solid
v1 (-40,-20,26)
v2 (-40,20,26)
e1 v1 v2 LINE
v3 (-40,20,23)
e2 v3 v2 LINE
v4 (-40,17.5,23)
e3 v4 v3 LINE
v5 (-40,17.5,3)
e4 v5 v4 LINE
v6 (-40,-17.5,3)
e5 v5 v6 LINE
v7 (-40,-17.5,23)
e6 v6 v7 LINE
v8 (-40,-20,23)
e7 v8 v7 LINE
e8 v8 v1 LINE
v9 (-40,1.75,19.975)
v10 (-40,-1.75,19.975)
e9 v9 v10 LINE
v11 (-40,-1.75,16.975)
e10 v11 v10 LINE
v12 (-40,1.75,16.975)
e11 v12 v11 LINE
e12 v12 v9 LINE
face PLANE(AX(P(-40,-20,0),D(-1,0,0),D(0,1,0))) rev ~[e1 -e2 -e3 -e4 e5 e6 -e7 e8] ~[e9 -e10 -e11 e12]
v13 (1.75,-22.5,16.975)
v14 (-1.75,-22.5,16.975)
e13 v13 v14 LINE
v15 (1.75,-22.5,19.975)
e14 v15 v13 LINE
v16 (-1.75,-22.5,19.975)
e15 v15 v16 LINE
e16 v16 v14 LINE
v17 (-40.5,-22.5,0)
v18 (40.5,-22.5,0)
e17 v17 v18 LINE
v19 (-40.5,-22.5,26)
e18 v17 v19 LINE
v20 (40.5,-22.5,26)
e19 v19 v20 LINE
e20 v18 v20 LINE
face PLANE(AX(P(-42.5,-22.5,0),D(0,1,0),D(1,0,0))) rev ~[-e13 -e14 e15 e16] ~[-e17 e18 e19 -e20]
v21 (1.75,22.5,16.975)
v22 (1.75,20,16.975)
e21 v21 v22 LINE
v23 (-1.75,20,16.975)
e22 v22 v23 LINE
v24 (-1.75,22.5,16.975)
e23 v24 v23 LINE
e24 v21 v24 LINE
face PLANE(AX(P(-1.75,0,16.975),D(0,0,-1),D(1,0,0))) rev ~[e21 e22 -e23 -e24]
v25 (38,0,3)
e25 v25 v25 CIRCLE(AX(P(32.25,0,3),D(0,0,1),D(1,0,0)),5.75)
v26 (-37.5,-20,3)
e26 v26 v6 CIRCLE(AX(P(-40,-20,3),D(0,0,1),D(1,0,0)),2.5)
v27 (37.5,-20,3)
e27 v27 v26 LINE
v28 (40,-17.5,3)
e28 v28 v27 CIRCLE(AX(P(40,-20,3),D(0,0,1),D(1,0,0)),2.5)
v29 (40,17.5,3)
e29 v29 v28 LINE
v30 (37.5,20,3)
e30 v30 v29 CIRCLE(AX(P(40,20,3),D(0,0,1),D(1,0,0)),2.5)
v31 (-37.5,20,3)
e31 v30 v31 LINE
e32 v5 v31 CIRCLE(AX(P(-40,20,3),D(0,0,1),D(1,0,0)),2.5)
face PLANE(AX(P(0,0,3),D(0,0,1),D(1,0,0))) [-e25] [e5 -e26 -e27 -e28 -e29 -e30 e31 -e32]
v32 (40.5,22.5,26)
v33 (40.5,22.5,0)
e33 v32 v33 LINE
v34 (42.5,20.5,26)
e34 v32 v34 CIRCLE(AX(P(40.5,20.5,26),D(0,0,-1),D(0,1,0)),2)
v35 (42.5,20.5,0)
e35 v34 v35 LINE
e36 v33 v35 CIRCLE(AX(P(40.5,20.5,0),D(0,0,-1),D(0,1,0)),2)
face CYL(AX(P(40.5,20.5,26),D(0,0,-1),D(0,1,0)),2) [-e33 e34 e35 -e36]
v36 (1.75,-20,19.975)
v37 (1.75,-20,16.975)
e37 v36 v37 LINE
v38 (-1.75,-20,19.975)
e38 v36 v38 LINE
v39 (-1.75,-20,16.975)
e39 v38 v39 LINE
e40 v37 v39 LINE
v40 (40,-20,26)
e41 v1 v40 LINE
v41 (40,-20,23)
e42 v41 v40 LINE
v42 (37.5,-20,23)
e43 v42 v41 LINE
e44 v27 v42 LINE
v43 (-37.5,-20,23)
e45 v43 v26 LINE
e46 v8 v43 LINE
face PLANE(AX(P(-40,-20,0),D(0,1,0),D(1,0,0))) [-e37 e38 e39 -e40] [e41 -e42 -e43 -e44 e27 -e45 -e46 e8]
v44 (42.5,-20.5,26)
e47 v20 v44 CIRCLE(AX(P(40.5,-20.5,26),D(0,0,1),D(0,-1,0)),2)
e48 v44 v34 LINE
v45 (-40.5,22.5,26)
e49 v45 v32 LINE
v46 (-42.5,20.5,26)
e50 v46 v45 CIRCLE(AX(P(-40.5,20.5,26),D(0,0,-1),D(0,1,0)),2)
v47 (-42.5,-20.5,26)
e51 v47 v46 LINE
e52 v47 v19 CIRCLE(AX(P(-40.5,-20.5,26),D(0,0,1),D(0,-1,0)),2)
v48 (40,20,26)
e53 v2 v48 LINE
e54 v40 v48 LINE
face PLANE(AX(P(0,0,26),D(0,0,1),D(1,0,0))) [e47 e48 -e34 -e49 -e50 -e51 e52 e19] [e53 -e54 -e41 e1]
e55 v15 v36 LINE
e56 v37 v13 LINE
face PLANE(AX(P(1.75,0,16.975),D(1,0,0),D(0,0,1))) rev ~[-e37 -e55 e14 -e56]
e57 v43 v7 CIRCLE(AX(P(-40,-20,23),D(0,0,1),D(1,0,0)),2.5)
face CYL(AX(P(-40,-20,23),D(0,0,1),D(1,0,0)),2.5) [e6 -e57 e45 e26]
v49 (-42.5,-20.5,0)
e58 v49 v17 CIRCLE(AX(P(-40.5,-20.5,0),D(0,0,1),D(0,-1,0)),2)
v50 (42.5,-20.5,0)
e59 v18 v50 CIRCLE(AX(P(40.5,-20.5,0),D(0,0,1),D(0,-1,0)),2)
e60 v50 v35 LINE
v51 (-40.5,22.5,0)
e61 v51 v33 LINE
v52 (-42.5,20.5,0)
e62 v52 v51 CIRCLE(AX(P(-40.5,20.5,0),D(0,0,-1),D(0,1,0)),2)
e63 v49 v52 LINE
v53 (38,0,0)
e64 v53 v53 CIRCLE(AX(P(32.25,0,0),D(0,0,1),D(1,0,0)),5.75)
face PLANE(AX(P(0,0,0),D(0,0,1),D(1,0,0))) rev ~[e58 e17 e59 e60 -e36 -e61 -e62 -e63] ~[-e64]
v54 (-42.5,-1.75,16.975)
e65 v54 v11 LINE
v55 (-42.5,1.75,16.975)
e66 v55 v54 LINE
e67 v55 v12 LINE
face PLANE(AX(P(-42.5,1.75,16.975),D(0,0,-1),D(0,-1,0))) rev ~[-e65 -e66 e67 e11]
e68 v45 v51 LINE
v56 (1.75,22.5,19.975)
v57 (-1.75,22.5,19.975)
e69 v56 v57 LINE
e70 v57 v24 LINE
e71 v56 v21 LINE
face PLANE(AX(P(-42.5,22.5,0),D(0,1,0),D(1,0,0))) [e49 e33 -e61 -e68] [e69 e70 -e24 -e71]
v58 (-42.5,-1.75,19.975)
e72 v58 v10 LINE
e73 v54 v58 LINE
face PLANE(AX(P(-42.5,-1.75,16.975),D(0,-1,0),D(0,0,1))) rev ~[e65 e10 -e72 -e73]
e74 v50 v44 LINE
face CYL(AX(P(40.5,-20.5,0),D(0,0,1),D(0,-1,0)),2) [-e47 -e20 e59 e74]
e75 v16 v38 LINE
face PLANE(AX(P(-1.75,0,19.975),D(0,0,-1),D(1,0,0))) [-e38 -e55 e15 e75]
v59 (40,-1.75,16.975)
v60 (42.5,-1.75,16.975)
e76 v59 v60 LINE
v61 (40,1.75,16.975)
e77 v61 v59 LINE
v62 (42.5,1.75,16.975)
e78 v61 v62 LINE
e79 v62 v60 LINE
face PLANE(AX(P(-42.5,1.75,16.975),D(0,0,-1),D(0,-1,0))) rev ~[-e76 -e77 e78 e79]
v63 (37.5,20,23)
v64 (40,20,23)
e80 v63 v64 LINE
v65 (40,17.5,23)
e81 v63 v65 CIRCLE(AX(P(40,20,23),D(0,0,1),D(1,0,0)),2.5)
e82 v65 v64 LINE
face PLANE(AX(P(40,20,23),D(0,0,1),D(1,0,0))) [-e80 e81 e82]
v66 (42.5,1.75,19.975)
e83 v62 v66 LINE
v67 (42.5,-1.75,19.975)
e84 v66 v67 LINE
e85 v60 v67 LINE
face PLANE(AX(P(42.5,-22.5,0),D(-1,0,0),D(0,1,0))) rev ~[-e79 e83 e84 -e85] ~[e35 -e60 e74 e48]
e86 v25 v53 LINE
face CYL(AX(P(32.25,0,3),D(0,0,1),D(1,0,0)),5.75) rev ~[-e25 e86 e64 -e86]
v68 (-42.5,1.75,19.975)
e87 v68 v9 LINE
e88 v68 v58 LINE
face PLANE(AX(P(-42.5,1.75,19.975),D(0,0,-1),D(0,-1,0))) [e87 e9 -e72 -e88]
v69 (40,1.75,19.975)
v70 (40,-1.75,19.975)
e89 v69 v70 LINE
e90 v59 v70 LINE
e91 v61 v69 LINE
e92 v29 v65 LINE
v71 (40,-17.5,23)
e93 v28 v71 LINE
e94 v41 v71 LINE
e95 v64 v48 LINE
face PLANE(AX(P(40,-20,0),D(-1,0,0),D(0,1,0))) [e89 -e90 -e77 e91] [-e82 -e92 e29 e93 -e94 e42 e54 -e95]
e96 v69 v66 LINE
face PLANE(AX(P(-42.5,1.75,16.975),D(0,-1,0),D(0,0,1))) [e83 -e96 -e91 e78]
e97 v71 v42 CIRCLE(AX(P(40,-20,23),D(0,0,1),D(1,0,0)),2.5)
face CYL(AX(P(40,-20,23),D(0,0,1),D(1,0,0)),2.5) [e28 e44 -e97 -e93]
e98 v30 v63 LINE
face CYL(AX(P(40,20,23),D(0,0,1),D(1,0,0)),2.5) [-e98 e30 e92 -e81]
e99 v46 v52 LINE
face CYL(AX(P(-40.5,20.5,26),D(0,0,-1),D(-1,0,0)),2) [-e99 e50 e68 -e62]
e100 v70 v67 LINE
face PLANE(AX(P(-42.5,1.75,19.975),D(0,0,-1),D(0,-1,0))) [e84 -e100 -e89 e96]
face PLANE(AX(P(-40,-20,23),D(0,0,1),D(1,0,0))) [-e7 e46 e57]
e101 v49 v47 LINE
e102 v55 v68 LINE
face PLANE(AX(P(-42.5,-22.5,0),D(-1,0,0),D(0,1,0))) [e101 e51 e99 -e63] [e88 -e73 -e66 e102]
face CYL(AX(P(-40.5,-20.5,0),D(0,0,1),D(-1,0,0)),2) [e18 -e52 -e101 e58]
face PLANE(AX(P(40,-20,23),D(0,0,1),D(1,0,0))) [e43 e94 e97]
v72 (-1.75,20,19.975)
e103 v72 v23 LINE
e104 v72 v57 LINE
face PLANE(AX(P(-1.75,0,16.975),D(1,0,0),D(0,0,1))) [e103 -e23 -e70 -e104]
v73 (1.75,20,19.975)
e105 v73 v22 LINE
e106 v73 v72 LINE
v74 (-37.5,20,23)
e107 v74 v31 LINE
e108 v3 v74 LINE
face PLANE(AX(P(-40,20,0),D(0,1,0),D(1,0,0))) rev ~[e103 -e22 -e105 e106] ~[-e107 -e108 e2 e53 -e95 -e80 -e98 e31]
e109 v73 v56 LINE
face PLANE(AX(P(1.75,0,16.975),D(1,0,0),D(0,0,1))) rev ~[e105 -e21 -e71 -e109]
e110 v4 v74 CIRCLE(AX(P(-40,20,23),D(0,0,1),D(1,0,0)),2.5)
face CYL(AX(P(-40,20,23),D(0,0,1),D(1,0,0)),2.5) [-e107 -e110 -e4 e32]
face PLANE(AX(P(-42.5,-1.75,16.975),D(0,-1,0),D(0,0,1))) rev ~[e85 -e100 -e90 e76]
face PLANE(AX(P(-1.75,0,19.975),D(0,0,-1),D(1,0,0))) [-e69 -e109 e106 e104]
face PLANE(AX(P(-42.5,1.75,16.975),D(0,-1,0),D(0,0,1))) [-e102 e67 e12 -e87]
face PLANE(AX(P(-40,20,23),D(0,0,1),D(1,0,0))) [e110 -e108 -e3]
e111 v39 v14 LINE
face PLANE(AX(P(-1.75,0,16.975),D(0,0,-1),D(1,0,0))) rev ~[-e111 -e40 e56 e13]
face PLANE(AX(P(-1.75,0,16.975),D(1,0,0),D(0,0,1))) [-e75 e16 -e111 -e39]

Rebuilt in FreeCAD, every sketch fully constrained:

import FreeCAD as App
import Part
import Sketcher
from FreeCAD import Vector
Q = App.Units.Quantity


def edges_at(feature, points):
    """Names of the edges that pass closest to the given points."""
    edges = feature.Shape.Edges
    near = lambda p: min(range(len(edges)), key=lambda i: edges[i].distToShape(Part.Vertex(*p))[0])
    return sorted({f"Edge{near(p) + 1}" for p in points})

doc = App.newDocument("Part")
body = doc.addObject("PartDesign::Body", "Body")

# Sketch on XY plane
sketch1 = doc.addObject("Sketcher::SketchObject", "Sketch")
body.addObject(sketch1)
sketch1.AttachmentSupport = (doc.XY_Plane, [""])
sketch1.MapMode = "FlatFace"
sketch1.addGeometry([
    Part.LineSegment(Vector(-42, 22, 0), Vector(-42, -22, 0)),
    Part.LineSegment(Vector(-42, -22, 0), Vector(42, -22, 0)),
    Part.LineSegment(Vector(42, -22, 0), Vector(42, 22, 0)),
    Part.LineSegment(Vector(42, 22, 0), Vector(-42, 22, 0)),
], False)
sketch1.addConstraint([
    Sketcher.Constraint("Coincident", 0, 2, 1, 1),
    Sketcher.Constraint("Coincident", 1, 2, 2, 1),
    Sketcher.Constraint("Coincident", 2, 2, 3, 1),
    Sketcher.Constraint("Coincident", 3, 2, 0, 1),
    Sketcher.Constraint("Vertical", 0),
    Sketcher.Constraint("Horizontal", 1),
    Sketcher.Constraint("Vertical", 2),
    Sketcher.Constraint("Horizontal", 3),
    Sketcher.Constraint("Symmetric", 0, 2, 2, 2, -1, 1),
    Sketcher.Constraint("DistanceX", 1, 1, 1, 2, Q("85 mm")),
    Sketcher.Constraint("DistanceY", 0, 2, 0, 1, Q("45 mm")),
])
pad1 = doc.addObject("PartDesign::Pad", "Pad")
body.addObject(pad1)
pad1.Profile = sketch1
pad1.Length = 3

# Sketch on XY plane
sketch2 = doc.addObject("Sketcher::SketchObject", "Sketch001")
body.addObject(sketch2)
sketch2.AttachmentSupport = (doc.XY_Plane, [""])
sketch2.MapMode = "FlatFace"
sketch2.addGeometry([
    Part.LineSegment(Vector(-42, 22, 0), Vector(-42, -22, 0)),  # 0
    Part.LineSegment(Vector(-42, -22, 0), Vector(42, -22, 0)),  # 1
    Part.LineSegment(Vector(42, -22, 0), Vector(42, 22, 0)),  # 2
    Part.LineSegment(Vector(42, 22, 0), Vector(-42, 22, 0)),  # 3
    Part.LineSegment(Vector(40, -20, 0), Vector(-40, -20, 0)),  # 4
    Part.LineSegment(Vector(-40, -20, 0), Vector(-40, 20, 0)),  # 5
    Part.LineSegment(Vector(-40, 20, 0), Vector(40, 20, 0)),  # 6
    Part.LineSegment(Vector(40, 20, 0), Vector(40, -20, 0)),  # 7
], False)
sketch2.addConstraint([
    Sketcher.Constraint("Coincident", 0, 2, 1, 1),
    Sketcher.Constraint("Coincident", 1, 2, 2, 1),
    Sketcher.Constraint("Coincident", 2, 2, 3, 1),
    Sketcher.Constraint("Coincident", 3, 2, 0, 1),
    Sketcher.Constraint("Coincident", 4, 2, 5, 1),
    Sketcher.Constraint("Coincident", 5, 2, 6, 1),
    Sketcher.Constraint("Coincident", 6, 2, 7, 1),
    Sketcher.Constraint("Coincident", 7, 2, 4, 1),
    Sketcher.Constraint("Vertical", 0),
    Sketcher.Constraint("Horizontal", 1),
    Sketcher.Constraint("Vertical", 2),
    Sketcher.Constraint("Horizontal", 3),
    Sketcher.Constraint("Horizontal", 4),
    Sketcher.Constraint("Vertical", 5),
    Sketcher.Constraint("Horizontal", 6),
    Sketcher.Constraint("Vertical", 7),
    Sketcher.Constraint("Symmetric", 0, 2, 2, 2, -1, 1),
    Sketcher.Constraint("Symmetric", 4, 2, 6, 2, -1, 1),
    Sketcher.Constraint("DistanceX", 1, 1, 1, 2, Q("85 mm")),
    Sketcher.Constraint("DistanceX", 4, 2, 4, 1, Q("80 mm")),
    Sketcher.Constraint("DistanceY", 0, 2, 0, 1, Q("45 mm")),
    Sketcher.Constraint("DistanceY", 5, 1, 5, 2, Q("40 mm")),
])
pad2 = doc.addObject("PartDesign::Pad", "Pad001")
body.addObject(pad2)
pad2.Profile = sketch2
pad2.Length = 26

# Sketch on XY plane
sketch3 = doc.addObject("Sketcher::SketchObject", "Sketch002")
body.addObject(sketch3)
sketch3.AttachmentSupport = (doc.XY_Plane, [""])
sketch3.MapMode = "FlatFace"
sketch3.AttachmentOffset = App.Placement(Vector(0, 0, 23), App.Rotation())
sketch3.addGeometry([
    Part.Circle(Vector(-40, 20, 0), Vector(0, 0, 1), 2.5),
    Part.Circle(Vector(40, 20, 0), Vector(0, 0, 1), 2.5),
    Part.Circle(Vector(40, -20, 0), Vector(0, 0, 1), 2.5),
    Part.Circle(Vector(-40, -20, 0), Vector(0, 0, 1), 2.5),
], False)
sketch3.addConstraint([
    Sketcher.Constraint("Equal", 0, 1),
    Sketcher.Constraint("Equal", 1, 2),
    Sketcher.Constraint("Equal", 2, 3),
    Sketcher.Constraint("Symmetric", 0, 3, 2, 3, -1, 1),
    Sketcher.Constraint("Symmetric", 1, 3, 3, 3, -1, 1),
    Sketcher.Constraint("Symmetric", 0, 3, 1, 3, -2),
    Sketcher.Constraint("Diameter", 0, Q("5 mm")),
    Sketcher.Constraint("DistanceX", 0, 3, -1, 1, Q("40 mm")),
    Sketcher.Constraint("DistanceY", -1, 1, 0, 3, Q("20 mm")),
])
pad3 = doc.addObject("PartDesign::Pad", "Pad002")
body.addObject(pad3)
pad3.Profile = sketch3
pad3.Type = "UpToLast"
pad3.Reversed = True

# Sketch on YZ plane
sketch4 = doc.addObject("Sketcher::SketchObject", "Sketch003")
body.addObject(sketch4)
sketch4.AttachmentSupport = (doc.YZ_Plane, [""])
sketch4.MapMode = "FlatFace"
sketch4.AttachmentOffset = App.Placement(Vector(0, 0, -42.5), App.Rotation())
sketch4.addGeometry([
    Part.LineSegment(Vector(1.8, 20, 0), Vector(1.8, 17, 0)),
    Part.LineSegment(Vector(1.8, 17, 0), Vector(-1.8, 17, 0)),
    Part.LineSegment(Vector(-1.8, 17, 0), Vector(-1.8, 20, 0)),
    Part.LineSegment(Vector(-1.8, 20, 0), Vector(1.8, 20, 0)),
], False)
sketch4.addConstraint([
    Sketcher.Constraint("Coincident", 0, 2, 1, 1),
    Sketcher.Constraint("Coincident", 1, 2, 2, 1),
    Sketcher.Constraint("Coincident", 2, 2, 3, 1),
    Sketcher.Constraint("Coincident", 3, 2, 0, 1),
    Sketcher.Constraint("Vertical", 0),
    Sketcher.Constraint("Horizontal", 1),
    Sketcher.Constraint("Vertical", 2),
    Sketcher.Constraint("Horizontal", 3),
    Sketcher.Constraint("DistanceY", 0, 2, 0, 1, Q("3 mm")),
    Sketcher.Constraint("DistanceX", 1, 2, 1, 1, Q("3.5 mm")),
    Sketcher.Constraint("DistanceX", -1, 1, 0, 2, Q("1.75 mm")),
    Sketcher.Constraint("DistanceY", -1, 1, 0, 2, Q("16.975 mm")),
])
pocket1 = doc.addObject("PartDesign::Pocket", "Pocket")
body.addObject(pocket1)
pocket1.Profile = sketch4
pocket1.Type = "ThroughAll"
pocket1.Reversed = True

# Sketch on XZ plane
sketch5 = doc.addObject("Sketcher::SketchObject", "Sketch004")
body.addObject(sketch5)
sketch5.AttachmentSupport = (doc.XZ_Plane, [""])
sketch5.MapMode = "FlatFace"
sketch5.addGeometry([
    Part.LineSegment(Vector(-1.8, 20, 0), Vector(-1.8, 17, 0)),
    Part.LineSegment(Vector(-1.8, 17, 0), Vector(1.8, 17, 0)),
    Part.LineSegment(Vector(1.8, 17, 0), Vector(1.8, 20, 0)),
    Part.LineSegment(Vector(1.8, 20, 0), Vector(-1.8, 20, 0)),
], False)
sketch5.addConstraint([
    Sketcher.Constraint("Coincident", 0, 2, 1, 1),
    Sketcher.Constraint("Coincident", 1, 2, 2, 1),
    Sketcher.Constraint("Coincident", 2, 2, 3, 1),
    Sketcher.Constraint("Coincident", 3, 2, 0, 1),
    Sketcher.Constraint("Vertical", 0),
    Sketcher.Constraint("Horizontal", 1),
    Sketcher.Constraint("Vertical", 2),
    Sketcher.Constraint("Horizontal", 3),
    Sketcher.Constraint("DistanceY", 0, 2, 0, 1, Q("3 mm")),
    Sketcher.Constraint("DistanceX", 1, 1, 1, 2, Q("3.5 mm")),
    Sketcher.Constraint("DistanceX", 0, 2, -1, 1, Q("1.75 mm")),
    Sketcher.Constraint("DistanceY", -1, 1, 0, 2, Q("16.975 mm")),
])
pocket2 = doc.addObject("PartDesign::Pocket", "Pocket001")
body.addObject(pocket2)
pocket2.Profile = sketch5
pocket2.Length = 60
pocket2.Midplane = True
doc.recompute()

fillet = doc.addObject("PartDesign::Fillet", "Fillet")
body.addObject(fillet)
fillet.Base = (pocket2, edges_at(pocket2, [
    (-42.5, -22.5, 13),
    (42.5, -22.5, 13),
    (-42.5, 22.5, 13),
    (42.5, 22.5, 13),
]))
fillet.Radius = 2

# Sketch on XY plane
sketch6 = doc.addObject("Sketcher::SketchObject", "Sketch005")
body.addObject(sketch6)
sketch6.AttachmentSupport = (doc.XY_Plane, [""])
sketch6.MapMode = "FlatFace"
sketch6.AttachmentOffset = App.Placement(Vector(0, 0, 3), App.Rotation())
sketch6.addGeometry(Part.Circle(Vector(32, 0, 0), Vector(0, 0, 1), 6), False)
sketch6.addConstraint([
    Sketcher.Constraint("PointOnObject", 0, 3, -1),
    Sketcher.Constraint("Diameter", 0, Q("11.5 mm")),
    Sketcher.Constraint("DistanceX", -1, 1, 0, 3, Q("32.25 mm")),
])
pocket3 = doc.addObject("PartDesign::Pocket", "Pocket002")
body.addObject(pocket3)
pocket3.Profile = sketch6
pocket3.Type = "ThroughAll"

doc.recompute()
